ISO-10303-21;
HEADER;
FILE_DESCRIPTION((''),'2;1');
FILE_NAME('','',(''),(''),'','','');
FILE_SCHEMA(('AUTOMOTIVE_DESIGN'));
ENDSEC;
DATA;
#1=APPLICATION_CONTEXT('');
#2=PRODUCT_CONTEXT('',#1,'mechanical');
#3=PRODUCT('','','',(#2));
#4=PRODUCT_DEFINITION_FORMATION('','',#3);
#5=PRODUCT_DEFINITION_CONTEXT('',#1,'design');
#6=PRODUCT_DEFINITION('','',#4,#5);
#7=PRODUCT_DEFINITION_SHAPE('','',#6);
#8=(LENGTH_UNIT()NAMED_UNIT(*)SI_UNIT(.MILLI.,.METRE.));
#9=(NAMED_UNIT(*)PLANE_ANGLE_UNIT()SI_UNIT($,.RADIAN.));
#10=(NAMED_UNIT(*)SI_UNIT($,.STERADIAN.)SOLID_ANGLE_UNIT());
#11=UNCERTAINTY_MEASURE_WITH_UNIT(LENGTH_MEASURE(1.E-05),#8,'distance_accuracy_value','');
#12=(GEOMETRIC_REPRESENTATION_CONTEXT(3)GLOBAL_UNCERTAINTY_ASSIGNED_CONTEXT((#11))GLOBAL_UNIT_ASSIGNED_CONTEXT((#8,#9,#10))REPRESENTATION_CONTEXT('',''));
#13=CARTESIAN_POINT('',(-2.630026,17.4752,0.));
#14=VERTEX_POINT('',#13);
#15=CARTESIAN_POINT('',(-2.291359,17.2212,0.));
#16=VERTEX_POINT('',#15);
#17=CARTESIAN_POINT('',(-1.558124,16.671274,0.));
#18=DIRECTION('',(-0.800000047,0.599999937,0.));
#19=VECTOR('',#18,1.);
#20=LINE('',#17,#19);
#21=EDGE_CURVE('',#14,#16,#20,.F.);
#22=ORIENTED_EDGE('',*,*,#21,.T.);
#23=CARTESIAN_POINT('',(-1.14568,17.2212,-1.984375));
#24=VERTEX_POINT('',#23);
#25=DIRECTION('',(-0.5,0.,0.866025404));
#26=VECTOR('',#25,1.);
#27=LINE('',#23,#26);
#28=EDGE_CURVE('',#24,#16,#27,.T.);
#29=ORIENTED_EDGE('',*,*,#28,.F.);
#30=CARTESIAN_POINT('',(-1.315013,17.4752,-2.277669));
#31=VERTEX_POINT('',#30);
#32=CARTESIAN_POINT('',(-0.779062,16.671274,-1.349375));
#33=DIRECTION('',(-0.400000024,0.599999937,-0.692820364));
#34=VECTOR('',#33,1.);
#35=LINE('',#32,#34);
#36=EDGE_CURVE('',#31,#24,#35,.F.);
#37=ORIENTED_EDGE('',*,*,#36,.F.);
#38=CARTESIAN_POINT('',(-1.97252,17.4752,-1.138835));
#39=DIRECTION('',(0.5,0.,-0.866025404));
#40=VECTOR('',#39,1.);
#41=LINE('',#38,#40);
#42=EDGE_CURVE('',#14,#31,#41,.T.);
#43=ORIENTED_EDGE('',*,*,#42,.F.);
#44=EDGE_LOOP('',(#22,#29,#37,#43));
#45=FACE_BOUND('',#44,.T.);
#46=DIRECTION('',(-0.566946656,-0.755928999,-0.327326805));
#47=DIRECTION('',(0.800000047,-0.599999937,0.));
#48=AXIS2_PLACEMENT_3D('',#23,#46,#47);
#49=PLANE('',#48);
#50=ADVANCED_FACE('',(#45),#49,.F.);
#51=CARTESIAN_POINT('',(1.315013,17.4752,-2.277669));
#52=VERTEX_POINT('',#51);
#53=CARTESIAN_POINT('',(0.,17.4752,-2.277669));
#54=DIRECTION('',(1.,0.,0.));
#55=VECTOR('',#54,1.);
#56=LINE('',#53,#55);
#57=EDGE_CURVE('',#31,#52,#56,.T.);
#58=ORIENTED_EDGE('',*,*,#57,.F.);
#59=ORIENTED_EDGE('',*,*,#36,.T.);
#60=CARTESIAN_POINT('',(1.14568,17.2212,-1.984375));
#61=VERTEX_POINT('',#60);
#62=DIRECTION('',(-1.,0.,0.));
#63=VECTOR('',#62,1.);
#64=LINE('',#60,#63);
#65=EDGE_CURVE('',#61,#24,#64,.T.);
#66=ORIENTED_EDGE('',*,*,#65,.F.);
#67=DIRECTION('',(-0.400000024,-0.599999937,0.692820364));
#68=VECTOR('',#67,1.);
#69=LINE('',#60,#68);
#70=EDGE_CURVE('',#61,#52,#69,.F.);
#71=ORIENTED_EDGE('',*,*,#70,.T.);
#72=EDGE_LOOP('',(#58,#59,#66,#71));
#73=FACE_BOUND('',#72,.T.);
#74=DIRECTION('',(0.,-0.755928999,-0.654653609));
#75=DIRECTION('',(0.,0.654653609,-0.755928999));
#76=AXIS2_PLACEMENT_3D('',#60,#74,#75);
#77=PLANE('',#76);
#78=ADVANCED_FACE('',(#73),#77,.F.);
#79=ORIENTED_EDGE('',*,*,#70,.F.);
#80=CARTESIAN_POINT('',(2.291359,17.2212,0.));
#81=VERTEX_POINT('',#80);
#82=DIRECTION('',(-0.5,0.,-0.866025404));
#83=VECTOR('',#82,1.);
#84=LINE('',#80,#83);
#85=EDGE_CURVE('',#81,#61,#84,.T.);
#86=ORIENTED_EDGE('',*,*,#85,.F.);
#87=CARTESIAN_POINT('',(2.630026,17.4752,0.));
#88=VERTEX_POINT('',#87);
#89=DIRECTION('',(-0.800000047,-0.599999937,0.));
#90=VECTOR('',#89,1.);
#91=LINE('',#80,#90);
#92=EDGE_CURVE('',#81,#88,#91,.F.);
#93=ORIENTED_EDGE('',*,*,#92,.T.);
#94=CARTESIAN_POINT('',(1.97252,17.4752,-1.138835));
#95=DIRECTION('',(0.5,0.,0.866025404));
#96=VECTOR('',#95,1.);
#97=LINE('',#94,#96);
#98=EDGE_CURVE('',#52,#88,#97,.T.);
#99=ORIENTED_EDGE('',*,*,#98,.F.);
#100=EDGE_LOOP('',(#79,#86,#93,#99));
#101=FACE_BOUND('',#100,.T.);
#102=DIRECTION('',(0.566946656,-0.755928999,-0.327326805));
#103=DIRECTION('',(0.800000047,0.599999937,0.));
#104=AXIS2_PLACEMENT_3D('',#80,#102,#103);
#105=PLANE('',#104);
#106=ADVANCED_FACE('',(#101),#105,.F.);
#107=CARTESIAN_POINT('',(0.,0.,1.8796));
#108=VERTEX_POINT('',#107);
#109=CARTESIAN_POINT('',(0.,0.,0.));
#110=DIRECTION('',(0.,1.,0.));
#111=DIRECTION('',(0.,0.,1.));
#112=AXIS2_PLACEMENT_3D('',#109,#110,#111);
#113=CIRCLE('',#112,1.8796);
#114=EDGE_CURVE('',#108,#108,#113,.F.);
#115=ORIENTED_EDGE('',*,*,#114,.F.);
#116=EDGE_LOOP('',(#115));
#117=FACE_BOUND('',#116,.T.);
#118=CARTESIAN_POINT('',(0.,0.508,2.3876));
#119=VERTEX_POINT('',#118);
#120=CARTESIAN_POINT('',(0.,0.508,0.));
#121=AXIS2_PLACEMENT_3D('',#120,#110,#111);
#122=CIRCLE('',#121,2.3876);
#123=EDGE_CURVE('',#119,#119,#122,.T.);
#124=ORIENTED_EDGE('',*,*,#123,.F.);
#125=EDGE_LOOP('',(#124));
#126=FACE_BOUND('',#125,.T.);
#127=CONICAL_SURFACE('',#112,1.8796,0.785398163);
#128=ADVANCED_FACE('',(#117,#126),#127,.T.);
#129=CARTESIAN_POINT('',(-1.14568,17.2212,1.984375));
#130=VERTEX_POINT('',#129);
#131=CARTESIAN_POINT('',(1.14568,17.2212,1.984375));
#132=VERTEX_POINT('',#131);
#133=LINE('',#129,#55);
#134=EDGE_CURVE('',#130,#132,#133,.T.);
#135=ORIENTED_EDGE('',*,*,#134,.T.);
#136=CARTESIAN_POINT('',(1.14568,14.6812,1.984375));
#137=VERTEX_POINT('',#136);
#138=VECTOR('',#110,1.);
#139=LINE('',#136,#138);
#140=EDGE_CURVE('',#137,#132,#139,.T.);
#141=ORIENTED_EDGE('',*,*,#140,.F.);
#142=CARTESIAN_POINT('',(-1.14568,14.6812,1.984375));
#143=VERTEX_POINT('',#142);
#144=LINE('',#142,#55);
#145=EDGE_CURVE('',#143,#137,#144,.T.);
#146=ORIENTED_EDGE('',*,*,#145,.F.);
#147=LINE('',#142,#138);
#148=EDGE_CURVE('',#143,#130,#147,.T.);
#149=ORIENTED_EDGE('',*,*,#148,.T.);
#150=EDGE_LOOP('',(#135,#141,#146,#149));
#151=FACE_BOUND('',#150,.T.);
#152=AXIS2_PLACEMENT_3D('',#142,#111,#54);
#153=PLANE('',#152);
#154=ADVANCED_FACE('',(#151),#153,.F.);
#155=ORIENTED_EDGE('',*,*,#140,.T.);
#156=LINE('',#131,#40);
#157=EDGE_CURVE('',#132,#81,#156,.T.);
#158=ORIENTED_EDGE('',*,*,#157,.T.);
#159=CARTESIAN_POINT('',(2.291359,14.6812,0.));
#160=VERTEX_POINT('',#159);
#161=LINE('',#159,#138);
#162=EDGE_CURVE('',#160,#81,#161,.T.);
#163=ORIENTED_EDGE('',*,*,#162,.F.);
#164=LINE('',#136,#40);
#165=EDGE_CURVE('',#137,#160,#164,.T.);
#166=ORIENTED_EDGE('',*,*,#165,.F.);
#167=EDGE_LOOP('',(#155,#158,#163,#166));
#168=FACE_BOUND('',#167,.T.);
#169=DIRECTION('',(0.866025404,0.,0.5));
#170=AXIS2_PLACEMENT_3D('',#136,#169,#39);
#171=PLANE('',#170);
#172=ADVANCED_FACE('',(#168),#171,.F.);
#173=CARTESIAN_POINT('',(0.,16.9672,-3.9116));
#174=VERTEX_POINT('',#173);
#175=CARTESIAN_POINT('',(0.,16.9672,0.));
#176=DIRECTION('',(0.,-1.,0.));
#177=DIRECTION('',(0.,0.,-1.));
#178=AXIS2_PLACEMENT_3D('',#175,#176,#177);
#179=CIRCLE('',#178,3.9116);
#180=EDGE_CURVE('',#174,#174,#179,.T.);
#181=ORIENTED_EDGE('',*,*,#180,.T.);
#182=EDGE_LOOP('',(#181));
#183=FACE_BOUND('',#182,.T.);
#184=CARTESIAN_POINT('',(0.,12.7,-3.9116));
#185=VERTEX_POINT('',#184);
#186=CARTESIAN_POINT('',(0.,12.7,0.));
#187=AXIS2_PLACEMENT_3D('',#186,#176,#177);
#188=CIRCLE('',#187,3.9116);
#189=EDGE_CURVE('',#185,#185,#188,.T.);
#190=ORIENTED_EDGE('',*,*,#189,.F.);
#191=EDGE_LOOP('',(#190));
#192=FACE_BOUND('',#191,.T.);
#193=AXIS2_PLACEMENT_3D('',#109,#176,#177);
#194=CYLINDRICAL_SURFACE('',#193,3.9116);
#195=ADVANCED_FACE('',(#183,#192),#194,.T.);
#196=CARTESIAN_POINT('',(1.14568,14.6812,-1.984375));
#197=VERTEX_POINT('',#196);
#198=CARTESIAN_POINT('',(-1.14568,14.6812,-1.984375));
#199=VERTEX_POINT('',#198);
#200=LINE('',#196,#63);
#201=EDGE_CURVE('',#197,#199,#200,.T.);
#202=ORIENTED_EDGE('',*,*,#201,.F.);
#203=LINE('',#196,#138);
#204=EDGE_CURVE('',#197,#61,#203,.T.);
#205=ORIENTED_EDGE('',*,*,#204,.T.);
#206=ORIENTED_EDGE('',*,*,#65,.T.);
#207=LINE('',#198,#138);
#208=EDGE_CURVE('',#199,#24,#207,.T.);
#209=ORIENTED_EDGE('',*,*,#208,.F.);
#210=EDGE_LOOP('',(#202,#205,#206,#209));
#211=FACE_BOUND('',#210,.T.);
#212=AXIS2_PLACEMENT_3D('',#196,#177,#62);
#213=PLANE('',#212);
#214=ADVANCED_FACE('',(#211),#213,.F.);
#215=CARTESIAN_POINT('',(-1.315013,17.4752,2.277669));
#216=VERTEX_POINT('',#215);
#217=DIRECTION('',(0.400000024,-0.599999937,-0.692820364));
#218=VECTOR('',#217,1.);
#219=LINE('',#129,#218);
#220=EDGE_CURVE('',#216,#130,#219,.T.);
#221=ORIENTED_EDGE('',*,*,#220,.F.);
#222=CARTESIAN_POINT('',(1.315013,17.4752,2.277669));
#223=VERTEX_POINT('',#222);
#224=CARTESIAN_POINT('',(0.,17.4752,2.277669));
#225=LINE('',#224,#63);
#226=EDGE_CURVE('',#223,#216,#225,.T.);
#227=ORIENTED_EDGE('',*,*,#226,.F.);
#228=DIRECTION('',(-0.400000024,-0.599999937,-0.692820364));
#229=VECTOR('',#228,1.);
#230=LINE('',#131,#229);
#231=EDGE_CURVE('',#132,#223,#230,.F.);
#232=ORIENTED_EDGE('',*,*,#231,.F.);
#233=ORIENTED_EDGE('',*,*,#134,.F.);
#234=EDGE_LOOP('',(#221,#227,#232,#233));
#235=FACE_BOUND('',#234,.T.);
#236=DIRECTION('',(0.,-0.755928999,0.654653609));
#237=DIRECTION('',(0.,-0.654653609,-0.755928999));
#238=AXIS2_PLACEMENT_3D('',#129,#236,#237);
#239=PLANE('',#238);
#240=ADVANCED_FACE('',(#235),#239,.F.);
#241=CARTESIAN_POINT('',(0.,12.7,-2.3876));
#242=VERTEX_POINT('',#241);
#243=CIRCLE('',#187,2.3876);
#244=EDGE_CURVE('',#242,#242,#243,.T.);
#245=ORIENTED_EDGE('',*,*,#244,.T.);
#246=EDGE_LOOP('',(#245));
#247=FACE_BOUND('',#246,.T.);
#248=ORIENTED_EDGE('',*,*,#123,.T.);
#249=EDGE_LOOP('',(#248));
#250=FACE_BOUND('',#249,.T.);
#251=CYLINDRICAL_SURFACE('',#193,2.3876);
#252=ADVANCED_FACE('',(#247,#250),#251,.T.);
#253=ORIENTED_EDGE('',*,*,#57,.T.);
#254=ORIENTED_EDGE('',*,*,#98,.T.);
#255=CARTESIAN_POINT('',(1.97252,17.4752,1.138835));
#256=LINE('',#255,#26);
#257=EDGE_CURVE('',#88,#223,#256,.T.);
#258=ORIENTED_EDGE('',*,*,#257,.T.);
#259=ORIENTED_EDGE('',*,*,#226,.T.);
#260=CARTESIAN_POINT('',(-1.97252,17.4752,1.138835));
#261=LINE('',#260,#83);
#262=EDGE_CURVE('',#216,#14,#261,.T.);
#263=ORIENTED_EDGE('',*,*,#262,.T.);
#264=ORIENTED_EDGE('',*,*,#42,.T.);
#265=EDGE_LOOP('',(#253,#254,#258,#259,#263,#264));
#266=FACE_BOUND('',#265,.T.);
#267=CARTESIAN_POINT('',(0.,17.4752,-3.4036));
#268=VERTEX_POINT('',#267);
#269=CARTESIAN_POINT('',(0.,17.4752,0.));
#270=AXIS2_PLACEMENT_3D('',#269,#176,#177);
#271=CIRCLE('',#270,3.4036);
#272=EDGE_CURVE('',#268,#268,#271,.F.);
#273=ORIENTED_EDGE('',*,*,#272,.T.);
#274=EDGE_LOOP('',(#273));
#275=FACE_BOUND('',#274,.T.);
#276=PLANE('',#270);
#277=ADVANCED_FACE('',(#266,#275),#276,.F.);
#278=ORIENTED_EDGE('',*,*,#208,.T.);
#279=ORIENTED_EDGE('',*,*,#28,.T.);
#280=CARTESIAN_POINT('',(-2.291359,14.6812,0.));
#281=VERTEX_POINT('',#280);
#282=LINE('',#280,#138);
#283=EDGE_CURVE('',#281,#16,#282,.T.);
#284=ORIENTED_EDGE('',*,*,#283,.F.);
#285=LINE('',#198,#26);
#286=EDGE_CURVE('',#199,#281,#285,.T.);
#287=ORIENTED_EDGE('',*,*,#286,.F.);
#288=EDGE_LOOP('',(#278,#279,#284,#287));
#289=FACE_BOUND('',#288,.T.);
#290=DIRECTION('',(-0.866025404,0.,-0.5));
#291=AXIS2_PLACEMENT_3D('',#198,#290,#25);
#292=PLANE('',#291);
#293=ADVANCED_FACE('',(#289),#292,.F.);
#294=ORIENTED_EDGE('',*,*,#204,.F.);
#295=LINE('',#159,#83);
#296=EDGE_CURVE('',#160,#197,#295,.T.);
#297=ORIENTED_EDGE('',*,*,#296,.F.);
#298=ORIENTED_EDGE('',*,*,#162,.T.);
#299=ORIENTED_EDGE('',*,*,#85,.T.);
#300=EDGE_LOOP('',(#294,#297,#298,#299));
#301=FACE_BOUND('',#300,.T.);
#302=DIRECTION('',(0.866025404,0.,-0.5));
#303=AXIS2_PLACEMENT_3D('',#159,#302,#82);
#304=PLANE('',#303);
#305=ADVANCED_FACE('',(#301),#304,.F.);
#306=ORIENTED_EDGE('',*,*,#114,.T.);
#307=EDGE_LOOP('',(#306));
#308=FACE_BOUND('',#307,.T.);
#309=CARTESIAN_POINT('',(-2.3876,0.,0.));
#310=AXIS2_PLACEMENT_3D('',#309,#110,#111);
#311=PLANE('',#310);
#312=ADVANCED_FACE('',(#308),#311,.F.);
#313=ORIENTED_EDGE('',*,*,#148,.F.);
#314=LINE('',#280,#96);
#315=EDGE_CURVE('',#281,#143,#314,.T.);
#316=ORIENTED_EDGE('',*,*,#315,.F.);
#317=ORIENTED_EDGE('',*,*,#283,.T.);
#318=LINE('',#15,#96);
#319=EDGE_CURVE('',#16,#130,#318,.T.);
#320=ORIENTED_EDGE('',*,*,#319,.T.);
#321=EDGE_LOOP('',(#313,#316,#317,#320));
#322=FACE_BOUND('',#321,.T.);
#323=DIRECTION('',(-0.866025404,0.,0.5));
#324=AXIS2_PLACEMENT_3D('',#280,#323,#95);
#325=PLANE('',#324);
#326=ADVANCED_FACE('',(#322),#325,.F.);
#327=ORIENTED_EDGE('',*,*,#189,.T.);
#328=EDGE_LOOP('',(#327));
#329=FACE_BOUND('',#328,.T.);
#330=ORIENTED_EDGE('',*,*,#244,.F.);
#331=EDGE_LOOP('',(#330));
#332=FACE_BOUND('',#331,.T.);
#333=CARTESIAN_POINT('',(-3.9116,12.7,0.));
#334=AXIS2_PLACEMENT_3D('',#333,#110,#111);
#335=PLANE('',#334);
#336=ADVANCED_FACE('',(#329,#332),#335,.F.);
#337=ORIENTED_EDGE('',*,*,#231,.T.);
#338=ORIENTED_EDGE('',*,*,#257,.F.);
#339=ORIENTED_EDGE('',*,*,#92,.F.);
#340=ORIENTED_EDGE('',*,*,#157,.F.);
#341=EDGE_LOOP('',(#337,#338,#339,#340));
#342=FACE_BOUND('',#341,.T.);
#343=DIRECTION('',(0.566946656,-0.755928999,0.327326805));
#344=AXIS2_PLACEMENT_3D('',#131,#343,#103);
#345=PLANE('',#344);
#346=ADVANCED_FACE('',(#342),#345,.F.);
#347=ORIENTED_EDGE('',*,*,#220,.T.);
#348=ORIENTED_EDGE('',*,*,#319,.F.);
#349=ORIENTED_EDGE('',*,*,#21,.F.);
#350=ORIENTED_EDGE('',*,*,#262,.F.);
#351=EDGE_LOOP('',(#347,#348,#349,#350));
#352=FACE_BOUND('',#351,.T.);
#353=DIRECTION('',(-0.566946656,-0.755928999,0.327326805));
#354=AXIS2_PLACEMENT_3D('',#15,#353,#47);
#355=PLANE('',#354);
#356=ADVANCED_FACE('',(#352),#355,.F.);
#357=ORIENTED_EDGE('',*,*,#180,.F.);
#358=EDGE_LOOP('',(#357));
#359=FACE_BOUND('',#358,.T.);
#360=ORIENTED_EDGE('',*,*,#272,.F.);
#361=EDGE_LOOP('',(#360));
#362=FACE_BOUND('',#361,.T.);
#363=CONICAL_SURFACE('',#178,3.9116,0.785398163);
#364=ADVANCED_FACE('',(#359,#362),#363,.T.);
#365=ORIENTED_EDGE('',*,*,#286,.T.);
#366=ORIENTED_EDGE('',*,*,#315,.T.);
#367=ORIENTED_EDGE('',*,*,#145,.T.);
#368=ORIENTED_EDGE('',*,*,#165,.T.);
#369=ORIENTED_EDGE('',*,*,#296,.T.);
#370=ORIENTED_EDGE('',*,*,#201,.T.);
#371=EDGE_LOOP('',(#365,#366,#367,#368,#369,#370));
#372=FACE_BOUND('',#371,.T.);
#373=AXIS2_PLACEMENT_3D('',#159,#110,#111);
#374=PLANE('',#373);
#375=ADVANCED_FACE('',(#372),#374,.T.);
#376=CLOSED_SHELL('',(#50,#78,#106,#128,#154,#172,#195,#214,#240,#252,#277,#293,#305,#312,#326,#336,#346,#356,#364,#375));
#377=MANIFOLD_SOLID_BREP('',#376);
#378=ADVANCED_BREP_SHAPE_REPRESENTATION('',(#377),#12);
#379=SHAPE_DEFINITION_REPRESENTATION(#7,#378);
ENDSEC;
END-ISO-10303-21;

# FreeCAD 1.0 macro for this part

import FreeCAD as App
import Part
import Sketcher
Q = App.Units.Quantity


def edges_at(feature, points):
    """Names of the edges that pass closest to the given points."""
    edges = feature.Shape.Edges
    near = lambda p: min(range(len(edges)), key=lambda i: edges[i].distToShape(Part.Vertex(*p))[0])
    return sorted({f"Edge{near(p) + 1}" for p in points})


def add_polygon(sketch, points):
    """Adds a closed chain of lines whose ends are joined by coincident constraints."""
    first, n = sketch.GeometryCount, len(points)
    for a, b in zip(points, points[1:] + points[:1]):
        sketch.addGeometry(Part.LineSegment(App.Vector(*a, 0), App.Vector(*b, 0)), False)
    for i in range(n):
        sketch.addConstraint(Sketcher.Constraint("Coincident", first + i, 2, first + (i + 1) % n, 1))

doc = App.newDocument("Part")
params = doc.addObject("Spreadsheet::Sheet", "Params")
for row, (alias, value) in enumerate([
    ("sketch1_height", "0.5 in"),
    ("sketch1_width", "0.06 in"),
    ("sketch1_width2", "0.154 in"),
    ("sketch1_height2", "0.688 in"),
    ("revolution_angle", "360 deg"),
    ("pocket1_length", "0.11 in"),
    ("chamfer_size", "0.02 in"),
    ("chamfer2_size", "0.293294 mm"),
    ("chamfer2_size2", "0.01 in"),
], start=1):
    params.set(f"A{row}", alias)
    params.set(f"B{row}", "=" + value)
    params.setAlias(f"B{row}", alias)

body = doc.addObject("PartDesign::Body", "Body")

# Sketch on XY plane
sketch1 = doc.addObject("Sketcher::SketchObject", "Sketch")
body.addObject(sketch1)
sketch1.AttachmentSupport = (doc.XY_Plane, [""])
sketch1.MapMode = "FlatFace"
add_polygon(sketch1, [(0, 0), (0, 17.5), (-3.9, 17.5), (-3.9, 12.7), (-2.4, 12.7), (-2.4, 0)])  # lines 0-5
sketch1.addConstraint(Sketcher.Constraint("Vertical", 0))
sketch1.addConstraint(Sketcher.Constraint("Horizontal", 1))
sketch1.addConstraint(Sketcher.Constraint("Vertical", 2))
sketch1.addConstraint(Sketcher.Constraint("Horizontal", 3))
sketch1.addConstraint(Sketcher.Constraint("Vertical", 4))
sketch1.addConstraint(Sketcher.Constraint("Horizontal", 5))
sketch1.addConstraint(Sketcher.Constraint("Coincident", 5, 2, -1, 1))
sketch1.addConstraint(Sketcher.Constraint("DistanceY", 4, 2, 4, 1, Q("0.5 in")))
sketch1.addConstraint(Sketcher.Constraint("DistanceX", 3, 1, 3, 2, Q("0.06 in")))
sketch1.addConstraint(Sketcher.Constraint("DistanceX", 1, 2, 1, 1, Q("0.154 in")))
sketch1.addConstraint(Sketcher.Constraint("DistanceY", 0, 1, 0, 2, Q("0.688 in")))
sketch1.setExpression("Constraints[13]", "Params.sketch1_height")
sketch1.setExpression("Constraints[14]", "Params.sketch1_width")
sketch1.setExpression("Constraints[15]", "Params.sketch1_width2")
sketch1.setExpression("Constraints[16]", "Params.sketch1_height2")
revolution = doc.addObject("PartDesign::Revolution", "Revolution")
body.addObject(revolution)
revolution.Profile = sketch1
revolution.ReferenceAxis = (sketch1, ["V_Axis"])
revolution.setExpression("Angle", "Params.revolution_angle")

# Sketch on XZ plane
sketch2 = doc.addObject("Sketcher::SketchObject", "Sketch001")
body.addObject(sketch2)
sketch2.AttachmentSupport = (doc.XZ_Plane, [""])
sketch2.MapMode = "FlatFace"
sketch2.AttachmentOffset = App.Placement(App.Vector(0, 0, -0.688 * 25.4), App.Rotation())
add_polygon(sketch2, [(2.3, 0), (1.1, -2), (-1.1, -2), (-2.3, 0), (-1.1, 2), (1.1, 2)])  # lines 0-5
sketch2.addConstraint(Sketcher.Constraint("Horizontal", 1))
sketch2.addConstraint(Sketcher.Constraint("Horizontal", 4))
sketch2.addConstraint(Sketcher.Constraint("Symmetric", 0, 2, 3, 2, -1, 1))
sketch2.addConstraint(Sketcher.Constraint("Symmetric", 2, 2, 5, 2, -1, 1))
sketch2.addConstraint(Sketcher.Constraint("PointOnObject", 2, 2, -1))
sketch2.addConstraint(Sketcher.Constraint("Parallel", 2, 5))
sketch2.addConstraint(Sketcher.Constraint("Vertical", 1, 2, 3, 2))
sketch2.addConstraint(Sketcher.Constraint("Angle", 0, Q("-120 deg")))
sketch2.addConstraint(Sketcher.Constraint("DistanceY", 0, 2, -1, 1, Q("0.078125 in")))
sketch2.addConstraint(Sketcher.Constraint("DistanceX", 1, 2, 1, 1, 2.291359))
pocket1 = doc.addObject("PartDesign::Pocket", "Pocket")
body.addObject(pocket1)
pocket1.Profile = sketch2
pocket1.setExpression("Length", "Params.pocket1_length")
pocket1.Reversed = True
doc.recompute()

chamfer = doc.addObject("PartDesign::Chamfer", "Chamfer")
body.addObject(chamfer)
chamfer.Base = (pocket1, edges_at(pocket1, [(0, 0, 2.388), (0, 17.475, 3.912)]))
chamfer.setExpression("Size", "Params.chamfer_size")
doc.recompute()

chamfer2 = doc.addObject("PartDesign::Chamfer", "Chamfer001")
body.addObject(chamfer2)
chamfer2.Base = (chamfer, edges_at(chamfer, [
    (1.719, 17.475, 0.992),
    (1.719, 17.475, -0.992),
    (0, 17.475, -1.984),
    (-1.719, 17.475, -0.992),
    (-1.719, 17.475, 0.992),
    (0, 17.475, 1.984),
]))
chamfer2.ChamferType = "Two distances"
chamfer2.setExpression("Size", "Params.chamfer2_size")
chamfer2.setExpression("Size2", "Params.chamfer2_size2")

doc.recompute()
